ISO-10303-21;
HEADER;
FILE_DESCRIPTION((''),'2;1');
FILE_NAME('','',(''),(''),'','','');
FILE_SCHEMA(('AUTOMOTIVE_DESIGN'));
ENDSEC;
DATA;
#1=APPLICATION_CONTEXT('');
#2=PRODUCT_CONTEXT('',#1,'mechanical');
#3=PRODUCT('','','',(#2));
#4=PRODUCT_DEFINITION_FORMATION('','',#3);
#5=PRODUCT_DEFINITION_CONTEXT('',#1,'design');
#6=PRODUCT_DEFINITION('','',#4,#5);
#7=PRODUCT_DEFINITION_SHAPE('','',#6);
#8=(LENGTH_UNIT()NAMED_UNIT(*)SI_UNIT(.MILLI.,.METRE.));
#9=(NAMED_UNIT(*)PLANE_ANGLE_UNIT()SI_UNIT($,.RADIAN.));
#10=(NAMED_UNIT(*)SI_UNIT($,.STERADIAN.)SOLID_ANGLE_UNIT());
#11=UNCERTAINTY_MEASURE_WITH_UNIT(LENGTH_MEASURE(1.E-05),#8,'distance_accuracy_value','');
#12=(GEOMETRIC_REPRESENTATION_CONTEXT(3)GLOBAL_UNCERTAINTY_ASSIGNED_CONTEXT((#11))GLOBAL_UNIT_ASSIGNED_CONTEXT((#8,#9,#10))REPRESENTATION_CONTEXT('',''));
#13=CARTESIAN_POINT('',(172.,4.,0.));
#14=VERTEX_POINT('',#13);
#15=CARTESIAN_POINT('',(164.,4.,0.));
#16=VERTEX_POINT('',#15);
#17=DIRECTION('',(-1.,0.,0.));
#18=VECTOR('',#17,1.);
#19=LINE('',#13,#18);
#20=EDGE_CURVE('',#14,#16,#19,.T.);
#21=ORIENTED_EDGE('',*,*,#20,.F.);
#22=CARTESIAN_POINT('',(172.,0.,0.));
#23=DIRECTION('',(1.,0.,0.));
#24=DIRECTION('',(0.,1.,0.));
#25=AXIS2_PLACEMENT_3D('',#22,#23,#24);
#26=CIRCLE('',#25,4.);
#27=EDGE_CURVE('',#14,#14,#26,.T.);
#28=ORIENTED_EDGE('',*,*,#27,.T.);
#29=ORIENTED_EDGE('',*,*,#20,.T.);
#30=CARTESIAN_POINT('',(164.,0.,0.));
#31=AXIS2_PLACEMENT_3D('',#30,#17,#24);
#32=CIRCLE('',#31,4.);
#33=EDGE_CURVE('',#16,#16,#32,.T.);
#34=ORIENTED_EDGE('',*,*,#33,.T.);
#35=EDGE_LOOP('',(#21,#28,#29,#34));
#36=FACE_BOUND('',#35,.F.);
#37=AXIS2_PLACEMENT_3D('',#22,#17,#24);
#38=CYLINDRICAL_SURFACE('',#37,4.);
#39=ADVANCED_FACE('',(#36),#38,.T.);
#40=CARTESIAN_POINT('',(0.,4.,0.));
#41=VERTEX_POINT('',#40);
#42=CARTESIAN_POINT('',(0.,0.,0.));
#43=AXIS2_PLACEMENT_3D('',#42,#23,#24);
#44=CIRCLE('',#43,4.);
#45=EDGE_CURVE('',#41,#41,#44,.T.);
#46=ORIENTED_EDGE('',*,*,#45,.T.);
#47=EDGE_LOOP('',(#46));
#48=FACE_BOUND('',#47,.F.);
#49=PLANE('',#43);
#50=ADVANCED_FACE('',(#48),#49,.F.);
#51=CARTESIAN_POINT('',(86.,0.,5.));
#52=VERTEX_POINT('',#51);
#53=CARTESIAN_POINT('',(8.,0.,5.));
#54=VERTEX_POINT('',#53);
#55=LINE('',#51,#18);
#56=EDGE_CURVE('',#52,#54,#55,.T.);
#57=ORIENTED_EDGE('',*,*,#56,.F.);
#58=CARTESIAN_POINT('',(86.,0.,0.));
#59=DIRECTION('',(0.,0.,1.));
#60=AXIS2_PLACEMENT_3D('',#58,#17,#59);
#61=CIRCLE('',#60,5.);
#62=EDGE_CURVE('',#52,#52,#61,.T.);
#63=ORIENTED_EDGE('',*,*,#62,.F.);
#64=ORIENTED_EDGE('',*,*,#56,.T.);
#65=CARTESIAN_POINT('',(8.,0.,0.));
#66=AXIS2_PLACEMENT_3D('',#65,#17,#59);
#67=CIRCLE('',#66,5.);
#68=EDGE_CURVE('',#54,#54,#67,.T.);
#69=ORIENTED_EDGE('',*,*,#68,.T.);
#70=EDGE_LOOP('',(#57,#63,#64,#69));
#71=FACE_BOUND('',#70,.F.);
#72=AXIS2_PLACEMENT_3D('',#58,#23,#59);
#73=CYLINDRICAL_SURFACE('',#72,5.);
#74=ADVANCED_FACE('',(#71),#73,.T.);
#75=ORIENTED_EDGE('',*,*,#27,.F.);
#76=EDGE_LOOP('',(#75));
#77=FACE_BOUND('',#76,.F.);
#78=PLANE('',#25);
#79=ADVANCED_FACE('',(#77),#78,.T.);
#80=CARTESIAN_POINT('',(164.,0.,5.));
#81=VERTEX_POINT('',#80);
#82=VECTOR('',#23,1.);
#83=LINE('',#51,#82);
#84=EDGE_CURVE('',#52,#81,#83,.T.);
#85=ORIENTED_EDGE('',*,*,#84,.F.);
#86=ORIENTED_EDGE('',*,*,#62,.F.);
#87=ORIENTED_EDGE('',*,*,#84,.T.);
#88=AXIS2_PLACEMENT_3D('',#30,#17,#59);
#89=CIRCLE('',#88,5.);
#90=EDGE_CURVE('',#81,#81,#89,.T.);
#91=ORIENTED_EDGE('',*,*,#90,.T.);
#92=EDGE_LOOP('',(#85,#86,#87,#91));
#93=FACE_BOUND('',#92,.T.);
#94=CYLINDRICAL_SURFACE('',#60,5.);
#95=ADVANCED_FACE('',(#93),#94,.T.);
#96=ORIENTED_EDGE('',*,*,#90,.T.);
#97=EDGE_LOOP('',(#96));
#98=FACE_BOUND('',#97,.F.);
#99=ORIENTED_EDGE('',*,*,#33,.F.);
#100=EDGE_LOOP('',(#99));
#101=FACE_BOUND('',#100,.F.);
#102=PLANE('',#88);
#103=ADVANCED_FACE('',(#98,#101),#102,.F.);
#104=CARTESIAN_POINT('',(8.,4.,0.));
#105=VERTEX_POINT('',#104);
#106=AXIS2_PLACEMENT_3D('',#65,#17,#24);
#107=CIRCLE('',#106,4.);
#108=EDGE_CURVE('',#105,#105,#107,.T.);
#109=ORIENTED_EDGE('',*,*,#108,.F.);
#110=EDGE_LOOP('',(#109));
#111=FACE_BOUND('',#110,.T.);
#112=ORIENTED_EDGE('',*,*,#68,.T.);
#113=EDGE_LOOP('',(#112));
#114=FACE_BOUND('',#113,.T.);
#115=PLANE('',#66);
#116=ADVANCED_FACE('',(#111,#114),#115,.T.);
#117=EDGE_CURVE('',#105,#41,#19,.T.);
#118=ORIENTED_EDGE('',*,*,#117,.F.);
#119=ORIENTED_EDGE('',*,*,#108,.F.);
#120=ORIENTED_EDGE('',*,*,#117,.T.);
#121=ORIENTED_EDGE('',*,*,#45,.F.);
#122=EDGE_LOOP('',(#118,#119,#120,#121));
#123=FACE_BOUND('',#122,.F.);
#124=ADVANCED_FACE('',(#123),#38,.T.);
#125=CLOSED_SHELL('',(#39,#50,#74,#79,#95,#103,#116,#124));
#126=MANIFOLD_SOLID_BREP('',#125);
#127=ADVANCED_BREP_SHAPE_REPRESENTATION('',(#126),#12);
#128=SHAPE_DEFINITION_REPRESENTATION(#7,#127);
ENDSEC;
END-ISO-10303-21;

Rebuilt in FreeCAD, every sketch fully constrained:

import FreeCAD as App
import Part
import Sketcher

V = App.Vector
Q = App.Units.Quantity

doc = App.newDocument("Part")
body = doc.addObject("PartDesign::Body", "Body")

# Sketch on XY plane
sketch1 = body.newObject("Sketcher::SketchObject", "Sketch")
sketch1.AttachmentSupport = (doc.getObject("XY_Plane"), [""])
sketch1.MapMode = "FlatFace"
sketch1.addGeometry(Part.LineSegment(V(0, 4, 0), V(0, 0, 0)), False)
sketch1.addGeometry(Part.LineSegment(V(0, 0, 0), V(172, 0, 0)), False)
sketch1.addGeometry(Part.LineSegment(V(172, 0, 0), V(172, 4, 0)), False)
sketch1.addGeometry(Part.LineSegment(V(172, 4, 0), V(0, 4, 0)), False)
sketch1.addConstraint(Sketcher.Constraint("Coincident", 0, 2, 1, 1))
sketch1.addConstraint(Sketcher.Constraint("Coincident", 1, 2, 2, 1))
sketch1.addConstraint(Sketcher.Constraint("Coincident", 2, 2, 3, 1))
sketch1.addConstraint(Sketcher.Constraint("Coincident", 3, 2, 0, 1))
sketch1.addConstraint(Sketcher.Constraint("Vertical", 0))
sketch1.addConstraint(Sketcher.Constraint("Horizontal", 1))
sketch1.addConstraint(Sketcher.Constraint("Vertical", 2))
sketch1.addConstraint(Sketcher.Constraint("Horizontal", 3))
sketch1.addConstraint(Sketcher.Constraint("Coincident", 0, 2, -1, 1))
sketch1.addConstraint(Sketcher.Constraint("DistanceX", 1, 1, 1, 2, Q("172 mm")))
sketch1.addConstraint(Sketcher.Constraint("DistanceY", 0, 2, 0, 1, Q("4 mm")))
revolution = body.newObject("PartDesign::Revolution", "Revolution")
revolution.Profile = sketch1
revolution.ReferenceAxis = (sketch1, ["H_Axis"])
revolution.Angle = 360

# Sketch on YZ plane
sketch2 = body.newObject("Sketcher::SketchObject", "Sketch001")
sketch2.AttachmentSupport = (doc.getObject("YZ_Plane"), [""])
sketch2.MapMode = "FlatFace"
sketch2.AttachmentOffset = App.Placement(V(0, 0, 86), App.Rotation())
sketch2.addGeometry(Part.Circle(V(0, 0, 0), V(0, 0, 1), 5), False)
sketch2.addConstraint(Sketcher.Constraint("Coincident", 0, 3, -1, 1))
sketch2.addConstraint(Sketcher.Constraint("Diameter", 0, Q("10 mm")))
pad1 = body.newObject("PartDesign::Pad", "Pad")
pad1.Profile = sketch2
pad1.Type = "TwoLengths"
pad1.Length = 78
pad1.Length2 = 78
pad1.Reversed = True

doc.recompute()
